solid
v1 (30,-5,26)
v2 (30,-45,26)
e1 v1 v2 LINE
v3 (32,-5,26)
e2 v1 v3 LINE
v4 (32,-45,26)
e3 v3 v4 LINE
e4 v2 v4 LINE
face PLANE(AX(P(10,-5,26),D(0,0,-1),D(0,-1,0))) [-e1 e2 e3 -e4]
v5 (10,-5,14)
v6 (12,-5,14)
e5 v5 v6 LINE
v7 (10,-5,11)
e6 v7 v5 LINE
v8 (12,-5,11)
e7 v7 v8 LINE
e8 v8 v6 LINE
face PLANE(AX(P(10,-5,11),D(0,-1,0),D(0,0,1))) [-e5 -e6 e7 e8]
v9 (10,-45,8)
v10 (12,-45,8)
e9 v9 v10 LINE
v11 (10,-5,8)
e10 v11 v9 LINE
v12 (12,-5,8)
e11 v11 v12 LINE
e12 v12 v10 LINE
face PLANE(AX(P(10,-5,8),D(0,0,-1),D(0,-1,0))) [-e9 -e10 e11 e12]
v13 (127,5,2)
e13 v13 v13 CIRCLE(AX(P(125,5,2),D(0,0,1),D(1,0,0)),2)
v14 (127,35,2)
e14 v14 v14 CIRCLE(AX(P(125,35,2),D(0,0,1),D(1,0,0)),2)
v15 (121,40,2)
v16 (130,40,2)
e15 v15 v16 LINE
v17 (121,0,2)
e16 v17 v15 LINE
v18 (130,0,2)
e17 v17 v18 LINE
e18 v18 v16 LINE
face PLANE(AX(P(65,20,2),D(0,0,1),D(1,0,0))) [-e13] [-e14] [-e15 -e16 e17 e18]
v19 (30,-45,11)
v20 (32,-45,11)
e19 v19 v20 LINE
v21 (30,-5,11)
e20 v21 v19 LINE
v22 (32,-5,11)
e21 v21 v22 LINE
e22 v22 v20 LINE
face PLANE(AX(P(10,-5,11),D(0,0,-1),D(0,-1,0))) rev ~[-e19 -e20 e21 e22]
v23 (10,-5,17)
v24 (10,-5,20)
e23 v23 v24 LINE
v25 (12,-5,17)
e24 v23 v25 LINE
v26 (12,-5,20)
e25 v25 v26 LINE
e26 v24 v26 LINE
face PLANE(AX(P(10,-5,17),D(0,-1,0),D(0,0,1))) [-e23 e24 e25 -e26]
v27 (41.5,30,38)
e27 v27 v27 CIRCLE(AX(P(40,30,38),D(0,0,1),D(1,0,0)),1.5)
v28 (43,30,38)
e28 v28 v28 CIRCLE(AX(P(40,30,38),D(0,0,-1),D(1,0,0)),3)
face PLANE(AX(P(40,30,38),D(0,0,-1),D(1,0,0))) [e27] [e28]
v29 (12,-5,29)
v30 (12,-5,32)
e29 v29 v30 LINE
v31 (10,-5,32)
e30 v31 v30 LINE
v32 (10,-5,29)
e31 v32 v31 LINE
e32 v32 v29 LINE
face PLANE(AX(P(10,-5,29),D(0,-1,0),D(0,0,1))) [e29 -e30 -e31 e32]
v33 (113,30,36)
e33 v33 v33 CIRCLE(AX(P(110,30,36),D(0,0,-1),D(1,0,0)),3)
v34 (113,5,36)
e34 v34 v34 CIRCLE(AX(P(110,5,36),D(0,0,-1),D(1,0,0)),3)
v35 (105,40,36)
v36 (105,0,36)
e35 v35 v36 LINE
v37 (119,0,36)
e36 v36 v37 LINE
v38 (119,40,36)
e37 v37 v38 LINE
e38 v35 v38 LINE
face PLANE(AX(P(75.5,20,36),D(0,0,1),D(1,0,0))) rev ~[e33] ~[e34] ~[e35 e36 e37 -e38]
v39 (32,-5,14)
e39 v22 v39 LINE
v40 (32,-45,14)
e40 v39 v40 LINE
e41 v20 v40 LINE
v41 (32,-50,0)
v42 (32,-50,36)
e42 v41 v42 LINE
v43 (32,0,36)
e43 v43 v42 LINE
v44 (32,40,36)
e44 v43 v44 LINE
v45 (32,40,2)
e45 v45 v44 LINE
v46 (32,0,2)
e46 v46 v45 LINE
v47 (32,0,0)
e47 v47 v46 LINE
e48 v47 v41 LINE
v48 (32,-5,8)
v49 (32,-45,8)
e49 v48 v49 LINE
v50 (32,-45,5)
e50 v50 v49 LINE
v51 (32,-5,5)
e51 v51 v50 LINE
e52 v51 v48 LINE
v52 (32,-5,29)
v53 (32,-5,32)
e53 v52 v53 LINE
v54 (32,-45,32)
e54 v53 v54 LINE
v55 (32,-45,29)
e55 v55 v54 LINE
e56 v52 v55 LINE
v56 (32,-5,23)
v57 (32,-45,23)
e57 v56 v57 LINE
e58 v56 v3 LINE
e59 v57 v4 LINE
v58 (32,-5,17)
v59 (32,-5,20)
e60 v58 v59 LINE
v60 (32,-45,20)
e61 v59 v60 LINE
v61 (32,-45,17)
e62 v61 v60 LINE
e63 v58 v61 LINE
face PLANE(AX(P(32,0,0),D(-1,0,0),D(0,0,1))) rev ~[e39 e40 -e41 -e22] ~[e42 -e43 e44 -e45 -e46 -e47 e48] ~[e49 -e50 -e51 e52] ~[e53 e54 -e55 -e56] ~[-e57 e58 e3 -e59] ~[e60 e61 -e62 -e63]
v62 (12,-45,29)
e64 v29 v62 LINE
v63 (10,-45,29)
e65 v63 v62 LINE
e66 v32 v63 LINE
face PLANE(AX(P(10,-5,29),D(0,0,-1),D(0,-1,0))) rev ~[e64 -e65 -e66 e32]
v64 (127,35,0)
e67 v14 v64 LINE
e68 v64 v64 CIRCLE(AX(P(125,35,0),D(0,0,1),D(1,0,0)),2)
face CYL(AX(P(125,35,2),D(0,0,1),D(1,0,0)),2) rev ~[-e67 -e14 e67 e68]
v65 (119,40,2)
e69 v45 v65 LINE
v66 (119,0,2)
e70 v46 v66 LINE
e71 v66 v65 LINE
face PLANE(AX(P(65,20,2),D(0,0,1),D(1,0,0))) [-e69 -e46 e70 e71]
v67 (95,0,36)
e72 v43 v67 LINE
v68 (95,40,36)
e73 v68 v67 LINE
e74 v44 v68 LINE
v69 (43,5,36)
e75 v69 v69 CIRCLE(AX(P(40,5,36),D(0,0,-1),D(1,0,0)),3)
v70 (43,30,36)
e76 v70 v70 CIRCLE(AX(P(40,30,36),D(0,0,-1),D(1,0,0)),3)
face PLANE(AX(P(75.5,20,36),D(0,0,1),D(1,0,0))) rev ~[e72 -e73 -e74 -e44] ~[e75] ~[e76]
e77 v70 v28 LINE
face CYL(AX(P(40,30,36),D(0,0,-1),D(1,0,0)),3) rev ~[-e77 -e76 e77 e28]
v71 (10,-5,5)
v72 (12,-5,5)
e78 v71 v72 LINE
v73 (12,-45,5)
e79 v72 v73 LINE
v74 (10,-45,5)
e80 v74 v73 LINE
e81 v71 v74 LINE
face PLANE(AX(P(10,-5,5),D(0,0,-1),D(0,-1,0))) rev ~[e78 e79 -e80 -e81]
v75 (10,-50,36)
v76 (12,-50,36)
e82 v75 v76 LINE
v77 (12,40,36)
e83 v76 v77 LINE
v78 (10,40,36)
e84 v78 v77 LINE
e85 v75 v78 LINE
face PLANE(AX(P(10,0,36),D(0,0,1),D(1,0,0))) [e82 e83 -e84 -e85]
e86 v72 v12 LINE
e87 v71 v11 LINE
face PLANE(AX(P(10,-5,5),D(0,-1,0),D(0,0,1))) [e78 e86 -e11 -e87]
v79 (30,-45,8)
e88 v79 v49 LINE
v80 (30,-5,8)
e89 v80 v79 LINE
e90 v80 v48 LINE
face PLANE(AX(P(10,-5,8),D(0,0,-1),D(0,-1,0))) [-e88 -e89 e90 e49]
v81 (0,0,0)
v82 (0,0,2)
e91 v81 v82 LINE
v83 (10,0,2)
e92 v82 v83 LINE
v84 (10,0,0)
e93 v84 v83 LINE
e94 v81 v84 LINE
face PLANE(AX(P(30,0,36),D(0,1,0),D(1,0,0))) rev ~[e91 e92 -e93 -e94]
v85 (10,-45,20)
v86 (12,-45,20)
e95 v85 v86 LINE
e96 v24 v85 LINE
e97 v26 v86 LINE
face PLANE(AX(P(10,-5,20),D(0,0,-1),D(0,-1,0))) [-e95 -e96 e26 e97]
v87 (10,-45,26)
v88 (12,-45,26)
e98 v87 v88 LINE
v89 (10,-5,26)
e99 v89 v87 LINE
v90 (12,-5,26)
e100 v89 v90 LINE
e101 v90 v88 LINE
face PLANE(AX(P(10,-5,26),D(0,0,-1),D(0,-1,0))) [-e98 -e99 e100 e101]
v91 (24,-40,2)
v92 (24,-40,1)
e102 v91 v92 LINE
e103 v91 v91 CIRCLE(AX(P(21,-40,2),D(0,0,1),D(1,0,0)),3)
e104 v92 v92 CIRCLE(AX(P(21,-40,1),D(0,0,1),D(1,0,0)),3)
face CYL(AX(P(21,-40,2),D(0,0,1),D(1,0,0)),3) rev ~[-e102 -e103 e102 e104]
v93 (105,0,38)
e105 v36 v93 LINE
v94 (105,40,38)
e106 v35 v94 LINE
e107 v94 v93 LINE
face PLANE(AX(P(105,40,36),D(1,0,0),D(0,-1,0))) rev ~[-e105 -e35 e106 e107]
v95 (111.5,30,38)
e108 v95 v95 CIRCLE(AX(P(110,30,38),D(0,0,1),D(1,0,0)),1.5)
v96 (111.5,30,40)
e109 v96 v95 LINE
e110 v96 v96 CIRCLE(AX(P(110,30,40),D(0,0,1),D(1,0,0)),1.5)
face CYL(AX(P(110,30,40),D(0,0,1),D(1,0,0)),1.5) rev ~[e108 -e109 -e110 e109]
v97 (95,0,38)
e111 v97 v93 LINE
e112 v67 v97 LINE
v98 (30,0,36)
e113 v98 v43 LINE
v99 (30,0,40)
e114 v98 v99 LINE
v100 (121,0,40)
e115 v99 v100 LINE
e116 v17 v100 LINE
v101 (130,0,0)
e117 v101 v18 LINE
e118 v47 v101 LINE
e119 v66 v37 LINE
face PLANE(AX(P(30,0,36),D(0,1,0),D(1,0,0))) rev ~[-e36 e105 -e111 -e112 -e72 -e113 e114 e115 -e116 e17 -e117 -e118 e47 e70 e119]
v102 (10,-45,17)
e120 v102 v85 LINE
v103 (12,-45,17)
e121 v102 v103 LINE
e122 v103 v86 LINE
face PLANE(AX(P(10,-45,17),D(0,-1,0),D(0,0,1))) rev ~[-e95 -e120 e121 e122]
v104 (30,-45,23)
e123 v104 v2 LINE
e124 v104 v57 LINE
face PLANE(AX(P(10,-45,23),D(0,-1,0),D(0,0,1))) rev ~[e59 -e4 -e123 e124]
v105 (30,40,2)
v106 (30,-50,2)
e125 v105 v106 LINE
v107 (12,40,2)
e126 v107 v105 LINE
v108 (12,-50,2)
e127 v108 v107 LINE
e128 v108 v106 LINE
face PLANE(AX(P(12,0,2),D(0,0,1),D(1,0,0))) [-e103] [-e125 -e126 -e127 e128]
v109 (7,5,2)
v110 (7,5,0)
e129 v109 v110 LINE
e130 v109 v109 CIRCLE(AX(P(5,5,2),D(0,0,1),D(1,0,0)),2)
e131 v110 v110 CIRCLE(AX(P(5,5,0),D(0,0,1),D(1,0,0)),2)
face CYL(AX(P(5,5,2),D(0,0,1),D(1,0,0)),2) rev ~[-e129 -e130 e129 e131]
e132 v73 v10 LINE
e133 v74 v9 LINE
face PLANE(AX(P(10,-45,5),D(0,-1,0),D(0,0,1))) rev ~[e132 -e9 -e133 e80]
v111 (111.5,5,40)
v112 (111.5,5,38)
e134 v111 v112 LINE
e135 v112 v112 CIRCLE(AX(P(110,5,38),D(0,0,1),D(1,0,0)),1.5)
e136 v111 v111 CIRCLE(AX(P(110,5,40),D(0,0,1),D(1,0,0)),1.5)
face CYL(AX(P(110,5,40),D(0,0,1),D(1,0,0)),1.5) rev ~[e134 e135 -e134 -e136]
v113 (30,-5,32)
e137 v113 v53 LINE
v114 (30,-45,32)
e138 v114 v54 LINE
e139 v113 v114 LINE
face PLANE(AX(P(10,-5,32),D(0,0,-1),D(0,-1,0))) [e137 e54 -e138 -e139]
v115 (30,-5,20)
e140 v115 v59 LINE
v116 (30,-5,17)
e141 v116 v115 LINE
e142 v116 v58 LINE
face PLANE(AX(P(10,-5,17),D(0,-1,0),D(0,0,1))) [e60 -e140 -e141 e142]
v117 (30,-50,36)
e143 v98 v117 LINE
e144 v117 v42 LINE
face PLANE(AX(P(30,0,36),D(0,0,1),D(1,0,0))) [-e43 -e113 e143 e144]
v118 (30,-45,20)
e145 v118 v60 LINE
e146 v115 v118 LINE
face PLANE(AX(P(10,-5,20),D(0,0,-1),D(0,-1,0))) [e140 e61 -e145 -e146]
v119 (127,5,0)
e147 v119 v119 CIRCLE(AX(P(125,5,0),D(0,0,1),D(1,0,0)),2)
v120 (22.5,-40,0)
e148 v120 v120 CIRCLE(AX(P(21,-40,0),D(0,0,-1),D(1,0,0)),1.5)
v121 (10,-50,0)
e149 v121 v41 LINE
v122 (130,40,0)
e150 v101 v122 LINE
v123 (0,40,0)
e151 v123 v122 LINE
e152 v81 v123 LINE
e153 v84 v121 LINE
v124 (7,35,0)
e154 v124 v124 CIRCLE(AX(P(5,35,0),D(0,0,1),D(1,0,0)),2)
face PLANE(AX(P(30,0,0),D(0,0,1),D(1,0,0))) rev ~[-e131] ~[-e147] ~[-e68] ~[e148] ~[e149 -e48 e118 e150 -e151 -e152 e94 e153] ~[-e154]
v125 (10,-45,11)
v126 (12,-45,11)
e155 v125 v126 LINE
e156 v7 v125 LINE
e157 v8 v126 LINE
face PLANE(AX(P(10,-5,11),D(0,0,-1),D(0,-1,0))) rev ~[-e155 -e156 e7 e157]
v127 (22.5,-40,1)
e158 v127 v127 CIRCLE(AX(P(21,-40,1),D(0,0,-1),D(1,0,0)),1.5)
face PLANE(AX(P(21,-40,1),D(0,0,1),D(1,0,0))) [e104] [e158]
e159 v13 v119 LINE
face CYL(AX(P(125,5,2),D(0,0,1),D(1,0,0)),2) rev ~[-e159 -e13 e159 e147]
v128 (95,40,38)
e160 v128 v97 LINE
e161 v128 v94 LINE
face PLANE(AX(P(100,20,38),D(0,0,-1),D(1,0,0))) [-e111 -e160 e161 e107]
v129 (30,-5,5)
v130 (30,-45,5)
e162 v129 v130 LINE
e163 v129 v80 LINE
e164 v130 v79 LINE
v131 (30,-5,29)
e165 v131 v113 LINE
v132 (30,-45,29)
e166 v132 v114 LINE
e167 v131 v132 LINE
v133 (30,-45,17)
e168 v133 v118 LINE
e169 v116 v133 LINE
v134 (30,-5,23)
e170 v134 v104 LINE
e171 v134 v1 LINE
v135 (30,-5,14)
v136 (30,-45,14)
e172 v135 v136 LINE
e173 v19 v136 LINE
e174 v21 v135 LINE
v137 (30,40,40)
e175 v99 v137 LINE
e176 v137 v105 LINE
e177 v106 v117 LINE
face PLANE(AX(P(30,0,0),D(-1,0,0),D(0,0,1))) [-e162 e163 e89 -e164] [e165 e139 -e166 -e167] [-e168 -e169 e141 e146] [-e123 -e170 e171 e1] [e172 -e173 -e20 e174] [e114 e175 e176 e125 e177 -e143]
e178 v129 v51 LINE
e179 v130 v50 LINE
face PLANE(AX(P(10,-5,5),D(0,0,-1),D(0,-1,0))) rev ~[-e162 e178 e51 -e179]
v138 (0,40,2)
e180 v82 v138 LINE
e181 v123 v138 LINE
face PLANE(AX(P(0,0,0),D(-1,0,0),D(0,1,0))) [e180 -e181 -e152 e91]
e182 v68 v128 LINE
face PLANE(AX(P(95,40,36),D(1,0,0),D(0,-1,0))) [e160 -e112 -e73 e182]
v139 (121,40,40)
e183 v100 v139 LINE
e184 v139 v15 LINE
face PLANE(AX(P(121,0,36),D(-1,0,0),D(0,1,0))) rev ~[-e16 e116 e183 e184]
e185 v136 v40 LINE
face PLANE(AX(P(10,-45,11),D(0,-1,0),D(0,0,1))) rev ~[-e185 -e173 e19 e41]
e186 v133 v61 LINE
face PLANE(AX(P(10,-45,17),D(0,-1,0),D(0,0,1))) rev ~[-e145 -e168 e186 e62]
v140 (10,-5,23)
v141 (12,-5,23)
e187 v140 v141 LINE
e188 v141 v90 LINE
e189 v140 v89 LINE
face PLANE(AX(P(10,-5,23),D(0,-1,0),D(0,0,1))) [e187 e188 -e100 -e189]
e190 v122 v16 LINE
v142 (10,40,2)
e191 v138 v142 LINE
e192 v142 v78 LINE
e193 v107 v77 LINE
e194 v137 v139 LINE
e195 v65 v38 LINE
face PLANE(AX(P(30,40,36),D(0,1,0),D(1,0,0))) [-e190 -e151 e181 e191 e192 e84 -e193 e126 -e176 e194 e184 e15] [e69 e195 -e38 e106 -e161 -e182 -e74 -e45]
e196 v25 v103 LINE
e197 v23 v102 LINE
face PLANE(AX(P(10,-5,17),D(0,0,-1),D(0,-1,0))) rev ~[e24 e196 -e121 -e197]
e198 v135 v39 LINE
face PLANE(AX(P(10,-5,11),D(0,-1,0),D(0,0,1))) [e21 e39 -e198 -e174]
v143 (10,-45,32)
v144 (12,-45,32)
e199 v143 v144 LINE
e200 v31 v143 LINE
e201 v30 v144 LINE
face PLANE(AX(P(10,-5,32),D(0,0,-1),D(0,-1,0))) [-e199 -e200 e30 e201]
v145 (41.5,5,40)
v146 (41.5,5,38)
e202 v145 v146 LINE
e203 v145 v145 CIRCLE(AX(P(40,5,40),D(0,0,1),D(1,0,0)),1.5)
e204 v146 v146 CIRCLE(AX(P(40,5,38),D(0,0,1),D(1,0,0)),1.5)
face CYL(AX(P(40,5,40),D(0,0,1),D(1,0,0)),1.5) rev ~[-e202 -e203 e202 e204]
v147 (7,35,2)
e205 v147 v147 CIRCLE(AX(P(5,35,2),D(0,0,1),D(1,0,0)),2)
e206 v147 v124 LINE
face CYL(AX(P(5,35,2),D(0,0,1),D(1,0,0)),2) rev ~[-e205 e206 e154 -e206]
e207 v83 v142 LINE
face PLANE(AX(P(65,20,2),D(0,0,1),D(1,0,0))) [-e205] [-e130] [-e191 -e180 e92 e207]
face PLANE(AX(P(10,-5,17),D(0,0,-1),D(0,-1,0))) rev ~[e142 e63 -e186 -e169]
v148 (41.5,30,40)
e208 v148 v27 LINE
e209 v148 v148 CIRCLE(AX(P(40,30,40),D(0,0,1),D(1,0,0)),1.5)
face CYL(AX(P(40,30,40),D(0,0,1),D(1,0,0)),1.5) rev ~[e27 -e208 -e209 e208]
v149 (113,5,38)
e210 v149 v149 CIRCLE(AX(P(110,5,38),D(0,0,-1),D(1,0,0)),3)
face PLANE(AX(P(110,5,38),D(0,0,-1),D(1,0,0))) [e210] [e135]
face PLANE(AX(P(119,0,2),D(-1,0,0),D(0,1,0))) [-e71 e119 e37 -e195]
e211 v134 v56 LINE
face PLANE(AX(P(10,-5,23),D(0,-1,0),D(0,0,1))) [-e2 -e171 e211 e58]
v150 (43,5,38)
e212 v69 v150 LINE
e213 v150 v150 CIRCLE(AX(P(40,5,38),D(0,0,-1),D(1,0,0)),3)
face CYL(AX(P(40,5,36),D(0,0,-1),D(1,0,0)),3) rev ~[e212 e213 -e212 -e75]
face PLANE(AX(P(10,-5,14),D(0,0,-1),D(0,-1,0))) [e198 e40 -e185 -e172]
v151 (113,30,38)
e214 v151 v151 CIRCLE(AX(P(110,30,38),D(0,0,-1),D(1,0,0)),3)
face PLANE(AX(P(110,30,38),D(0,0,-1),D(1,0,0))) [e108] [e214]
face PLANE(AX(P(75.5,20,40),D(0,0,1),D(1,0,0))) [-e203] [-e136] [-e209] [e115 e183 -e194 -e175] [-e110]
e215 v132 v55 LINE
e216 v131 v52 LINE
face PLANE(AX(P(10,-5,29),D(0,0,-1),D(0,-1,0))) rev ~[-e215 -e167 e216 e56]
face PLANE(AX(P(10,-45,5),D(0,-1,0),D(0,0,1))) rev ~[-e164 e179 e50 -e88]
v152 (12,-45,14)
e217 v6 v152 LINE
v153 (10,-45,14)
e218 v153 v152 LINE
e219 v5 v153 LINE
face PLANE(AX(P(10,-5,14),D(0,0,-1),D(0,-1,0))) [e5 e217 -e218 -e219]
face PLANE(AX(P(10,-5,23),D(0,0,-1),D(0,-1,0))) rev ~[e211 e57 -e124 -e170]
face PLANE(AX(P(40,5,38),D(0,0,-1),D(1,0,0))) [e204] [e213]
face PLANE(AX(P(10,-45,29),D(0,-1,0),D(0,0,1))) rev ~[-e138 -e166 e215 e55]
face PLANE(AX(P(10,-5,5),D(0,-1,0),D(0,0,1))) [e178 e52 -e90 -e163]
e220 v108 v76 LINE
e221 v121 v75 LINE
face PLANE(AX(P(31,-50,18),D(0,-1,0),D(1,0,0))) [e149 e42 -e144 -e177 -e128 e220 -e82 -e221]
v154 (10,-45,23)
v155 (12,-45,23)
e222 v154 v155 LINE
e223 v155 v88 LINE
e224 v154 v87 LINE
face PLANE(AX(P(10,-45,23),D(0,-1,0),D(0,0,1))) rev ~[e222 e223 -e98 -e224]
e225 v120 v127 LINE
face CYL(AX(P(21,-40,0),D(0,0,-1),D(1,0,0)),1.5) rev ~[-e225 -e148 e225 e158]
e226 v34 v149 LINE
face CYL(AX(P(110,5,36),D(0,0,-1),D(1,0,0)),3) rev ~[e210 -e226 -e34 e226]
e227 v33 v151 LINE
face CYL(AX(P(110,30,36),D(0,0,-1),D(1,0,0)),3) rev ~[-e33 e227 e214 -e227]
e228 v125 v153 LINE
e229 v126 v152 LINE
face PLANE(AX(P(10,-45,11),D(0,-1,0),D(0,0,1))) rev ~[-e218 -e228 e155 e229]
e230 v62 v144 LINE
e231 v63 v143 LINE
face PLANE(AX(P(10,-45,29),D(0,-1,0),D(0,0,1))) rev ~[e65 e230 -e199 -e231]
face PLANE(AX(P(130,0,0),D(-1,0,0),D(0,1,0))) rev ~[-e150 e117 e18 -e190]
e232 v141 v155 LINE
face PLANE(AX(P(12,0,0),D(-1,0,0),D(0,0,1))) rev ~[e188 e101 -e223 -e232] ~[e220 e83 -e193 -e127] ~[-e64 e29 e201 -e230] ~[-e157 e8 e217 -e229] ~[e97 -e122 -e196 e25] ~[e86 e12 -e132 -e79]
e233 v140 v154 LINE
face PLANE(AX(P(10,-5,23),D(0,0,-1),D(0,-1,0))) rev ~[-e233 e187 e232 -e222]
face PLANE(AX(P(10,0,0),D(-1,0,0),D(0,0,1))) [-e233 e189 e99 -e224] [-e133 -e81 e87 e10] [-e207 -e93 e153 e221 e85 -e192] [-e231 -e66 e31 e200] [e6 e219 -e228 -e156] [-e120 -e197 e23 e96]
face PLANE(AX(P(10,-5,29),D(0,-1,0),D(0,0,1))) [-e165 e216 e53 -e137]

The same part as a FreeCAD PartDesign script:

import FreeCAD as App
import Part
import Sketcher

doc = App.newDocument("Part")
body = doc.addObject("PartDesign::Body", "Body")

sketch1 = body.newObject("Sketcher::SketchObject", "Sketch")
sketch1.AttachmentSupport = (doc.getObject("XY_Plane"), [""])
sketch1.MapMode = "FlatFace"
sketch1.addGeometry(Part.LineSegment(App.Vector(0, 40, 0), App.Vector(0, 0, 0)), False)
sketch1.addGeometry(Part.LineSegment(App.Vector(0, 0, 0), App.Vector(130, 0, 0)), False)
sketch1.addGeometry(Part.LineSegment(App.Vector(130, 0, 0), App.Vector(130, 40, 0)), False)
sketch1.addGeometry(Part.LineSegment(App.Vector(130, 40, 0), App.Vector(0, 40, 0)), False)
sketch1.addConstraint(Sketcher.Constraint("Coincident", 0, 2, 1, 1))
sketch1.addConstraint(Sketcher.Constraint("Coincident", 1, 2, 2, 1))
sketch1.addConstraint(Sketcher.Constraint("Coincident", 2, 2, 3, 1))
sketch1.addConstraint(Sketcher.Constraint("Coincident", 3, 2, 0, 1))
sketch1.addConstraint(Sketcher.Constraint("Vertical", 0))
sketch1.addConstraint(Sketcher.Constraint("Horizontal", 1))
sketch1.addConstraint(Sketcher.Constraint("Vertical", 2))
sketch1.addConstraint(Sketcher.Constraint("Horizontal", 3))
sketch1.addConstraint(Sketcher.Constraint("Coincident", 0, 2, -1, 1))
sketch1.addConstraint(Sketcher.Constraint("DistanceX", 1, 1, 1, 2, 130.0))
sketch1.addConstraint(Sketcher.Constraint("DistanceY", 0, 2, 0, 1, 40.0))
pad1 = body.newObject("PartDesign::Pad", "Pad")
pad1.Profile = sketch1
pad1.Length = 2

sketch2 = body.newObject("Sketcher::SketchObject", "Sketch001")
sketch2.AttachmentSupport = (doc.getObject("XY_Plane"), [""])
sketch2.MapMode = "FlatFace"
sketch2.AttachmentOffset = App.Placement(App.Vector(0, 0, 2), App.Rotation())
sketch2.addGeometry(Part.LineSegment(App.Vector(10, 40, 0), App.Vector(10, 0, 0)), False)
sketch2.addGeometry(Part.LineSegment(App.Vector(10, 0, 0), App.Vector(12, 0, 0)), False)
sketch2.addGeometry(Part.LineSegment(App.Vector(12, 0, 0), App.Vector(12, 40, 0)), False)
sketch2.addGeometry(Part.LineSegment(App.Vector(12, 40, 0), App.Vector(10, 40, 0)), False)
sketch2.addGeometry(Part.LineSegment(App.Vector(30, 40, 0), App.Vector(30, 0, 0)), False)
sketch2.addGeometry(Part.LineSegment(App.Vector(30, 0, 0), App.Vector(32, 0, 0)), False)
sketch2.addGeometry(Part.LineSegment(App.Vector(32, 0, 0), App.Vector(32, 40, 0)), False)
sketch2.addGeometry(Part.LineSegment(App.Vector(32, 40, 0), App.Vector(30, 40, 0)), False)
sketch2.addGeometry(Part.LineSegment(App.Vector(119, 40, 0), App.Vector(119, 0, 0)), False)
sketch2.addGeometry(Part.LineSegment(App.Vector(119, 0, 0), App.Vector(121, 0, 0)), False)
sketch2.addGeometry(Part.LineSegment(App.Vector(121, 0, 0), App.Vector(121, 40, 0)), False)
sketch2.addGeometry(Part.LineSegment(App.Vector(121, 40, 0), App.Vector(119, 40, 0)), False)
sketch2.addConstraint(Sketcher.Constraint("Coincident", 0, 2, 1, 1))
sketch2.addConstraint(Sketcher.Constraint("Coincident", 1, 2, 2, 1))
sketch2.addConstraint(Sketcher.Constraint("Coincident", 2, 2, 3, 1))
sketch2.addConstraint(Sketcher.Constraint("Coincident", 3, 2, 0, 1))
sketch2.addConstraint(Sketcher.Constraint("Coincident", 4, 2, 5, 1))
sketch2.addConstraint(Sketcher.Constraint("Coincident", 5, 2, 6, 1))
sketch2.addConstraint(Sketcher.Constraint("Coincident", 6, 2, 7, 1))
sketch2.addConstraint(Sketcher.Constraint("Coincident", 7, 2, 4, 1))
sketch2.addConstraint(Sketcher.Constraint("Coincident", 8, 2, 9, 1))
sketch2.addConstraint(Sketcher.Constraint("Coincident", 9, 2, 10, 1))
sketch2.addConstraint(Sketcher.Constraint("Coincident", 10, 2, 11, 1))
sketch2.addConstraint(Sketcher.Constraint("Coincident", 11, 2, 8, 1))
sketch2.addConstraint(Sketcher.Constraint("Vertical", 0))
sketch2.addConstraint(Sketcher.Constraint("Horizontal", 1))
sketch2.addConstraint(Sketcher.Constraint("Vertical", 2))
sketch2.addConstraint(Sketcher.Constraint("Horizontal", 3))
sketch2.addConstraint(Sketcher.Constraint("Vertical", 4))
sketch2.addConstraint(Sketcher.Constraint("Horizontal", 5))
sketch2.addConstraint(Sketcher.Constraint("Vertical", 6))
sketch2.addConstraint(Sketcher.Constraint("Horizontal", 7))
sketch2.addConstraint(Sketcher.Constraint("Vertical", 8))
sketch2.addConstraint(Sketcher.Constraint("Horizontal", 9))
sketch2.addConstraint(Sketcher.Constraint("Vertical", 10))
sketch2.addConstraint(Sketcher.Constraint("Horizontal", 11))
sketch2.addConstraint(Sketcher.Constraint("PointOnObject", 0, 2, -1))
sketch2.addConstraint(Sketcher.Constraint("PointOnObject", 4, 2, -1))
sketch2.addConstraint(Sketcher.Constraint("PointOnObject", 8, 2, -1))
sketch2.addConstraint(Sketcher.Constraint("Horizontal", 3, 2, 6, 2))
sketch2.addConstraint(Sketcher.Constraint("Horizontal", 7, 2, 10, 2))
sketch2.addConstraint(Sketcher.Constraint("Equal", 3, 5))
sketch2.addConstraint(Sketcher.Constraint("Equal", 7, 9))
sketch2.addConstraint(Sketcher.Constraint("DistanceX", 1, 1, 1, 2, 2.0))
sketch2.addConstraint(Sketcher.Constraint("DistanceY", 0, 2, 0, 1, 40.0))
sketch2.addConstraint(Sketcher.Constraint("DistanceX", -1, 1, 0, 2, 10.0))
sketch2.addConstraint(Sketcher.Constraint("DistanceX", -1, 1, 4, 2, 30.0))
sketch2.addConstraint(Sketcher.Constraint("DistanceX", -1, 1, 8, 2, 119.0))
pad2 = body.newObject("PartDesign::Pad", "Pad001")
pad2.Profile = sketch2
pad2.Length = 34

sketch3 = body.newObject("Sketcher::SketchObject", "Sketch002")
sketch3.AttachmentSupport = (doc.getObject("XY_Plane"), [""])
sketch3.MapMode = "FlatFace"
sketch3.AttachmentOffset = App.Placement(App.Vector(0, 0, 2), App.Rotation())
sketch3.addGeometry(Part.Circle(App.Vector(5, 5, 0), App.Vector(0, 0, 1), 2), False)
sketch3.addGeometry(Part.Circle(App.Vector(5, 35, 0), App.Vector(0, 0, 1), 2), False)
sketch3.addConstraint(Sketcher.Constraint("Equal", 0, 1))
sketch3.addConstraint(Sketcher.Constraint("Vertical", 0, 3, 1, 3))
sketch3.addConstraint(Sketcher.Constraint("Diameter", 0, 4.0))
sketch3.addConstraint(Sketcher.Constraint("DistanceX", -1, 1, 0, 3, 5.0))
sketch3.addConstraint(Sketcher.Constraint("DistanceY", -1, 1, 0, 3, 5.0))
sketch3.addConstraint(Sketcher.Constraint("DistanceY", -1, 1, 1, 3, 35.0))
pocket1 = body.newObject("PartDesign::Pocket", "Pocket")
pocket1.Profile = sketch3
pocket1.Length = 2

sketch4 = body.newObject("Sketcher::SketchObject", "Sketch003")
sketch4.AttachmentSupport = (doc.getObject("XY_Plane"), [""])
sketch4.MapMode = "FlatFace"
sketch4.AttachmentOffset = App.Placement(App.Vector(0, 0, 2), App.Rotation())
sketch4.addGeometry(Part.Circle(App.Vector(125, 5, 0), App.Vector(0, 0, 1), 2), False)
sketch4.addGeometry(Part.Circle(App.Vector(125, 35, 0), App.Vector(0, 0, 1), 2), False)
sketch4.addConstraint(Sketcher.Constraint("Equal", 0, 1))
sketch4.addConstraint(Sketcher.Constraint("Vertical", 0, 3, 1, 3))
sketch4.addConstraint(Sketcher.Constraint("Diameter", 0, 4.0))
sketch4.addConstraint(Sketcher.Constraint("DistanceX", -1, 1, 0, 3, 125.0))
sketch4.addConstraint(Sketcher.Constraint("DistanceY", -1, 1, 0, 3, 5.0))
sketch4.addConstraint(Sketcher.Constraint("DistanceY", -1, 1, 1, 3, 35.0))
pocket2 = body.newObject("PartDesign::Pocket", "Pocket001")
pocket2.Profile = sketch4
pocket2.Length = 2

sketch5 = body.newObject("Sketcher::SketchObject", "Sketch004")
sketch5.AttachmentSupport = (doc.getObject("XY_Plane"), [""])
sketch5.MapMode = "FlatFace"
sketch5.AttachmentOffset = App.Placement(App.Vector(0, 0, 36), App.Rotation())
sketch5.addGeometry(Part.LineSegment(App.Vector(30, 40, 0), App.Vector(30, 0, 0)), False)
sketch5.addGeometry(Part.LineSegment(App.Vector(30, 0, 0), App.Vector(121, 0, 0)), False)
sketch5.addGeometry(Part.LineSegment(App.Vector(121, 0, 0), App.Vector(121, 40, 0)), False)
sketch5.addGeometry(Part.LineSegment(App.Vector(121, 40, 0), App.Vector(30, 40, 0)), False)
sketch5.addConstraint(Sketcher.Constraint("Coincident", 0, 2, 1, 1))
sketch5.addConstraint(Sketcher.Constraint("Coincident", 1, 2, 2, 1))
sketch5.addConstraint(Sketcher.Constraint("Coincident", 2, 2, 3, 1))
sketch5.addConstraint(Sketcher.Constraint("Coincident", 3, 2, 0, 1))
sketch5.addConstraint(Sketcher.Constraint("Vertical", 0))
sketch5.addConstraint(Sketcher.Constraint("Horizontal", 1))
sketch5.addConstraint(Sketcher.Constraint("Vertical", 2))
sketch5.addConstraint(Sketcher.Constraint("Horizontal", 3))
sketch5.addConstraint(Sketcher.Constraint("PointOnObject", 0, 2, -1))
sketch5.addConstraint(Sketcher.Constraint("DistanceX", 1, 1, 1, 2, 91.0))
sketch5.addConstraint(Sketcher.Constraint("DistanceY", 0, 2, 0, 1, 40.0))
sketch5.addConstraint(Sketcher.Constraint("DistanceX", -1, 1, 0, 2, 30.0))
pad3 = body.newObject("PartDesign::Pad", "Pad002")
pad3.Profile = sketch5
pad3.Length = 4

sketch6 = body.newObject("Sketcher::SketchObject", "Sketch005")
sketch6.AttachmentSupport = (doc.getObject("XZ_Plane"), [""])
sketch6.MapMode = "FlatFace"
sketch6.addGeometry(Part.LineSegment(App.Vector(12, 2, 0), App.Vector(12, 0, 0)), False)
sketch6.addGeometry(Part.LineSegment(App.Vector(12, 0, 0), App.Vector(30, 0, 0)), False)
sketch6.addGeometry(Part.LineSegment(App.Vector(30, 0, 0), App.Vector(30, 2, 0)), False)
sketch6.addGeometry(Part.LineSegment(App.Vector(30, 2, 0), App.Vector(12, 2, 0)), False)
sketch6.addConstraint(Sketcher.Constraint("Coincident", 0, 2, 1, 1))
sketch6.addConstraint(Sketcher.Constraint("Coincident", 1, 2, 2, 1))
sketch6.addConstraint(Sketcher.Constraint("Coincident", 2, 2, 3, 1))
sketch6.addConstraint(Sketcher.Constraint("Coincident", 3, 2, 0, 1))
sketch6.addConstraint(Sketcher.Constraint("Vertical", 0))
sketch6.addConstraint(Sketcher.Constraint("Horizontal", 1))
sketch6.addConstraint(Sketcher.Constraint("Vertical", 2))
sketch6.addConstraint(Sketcher.Constraint("Horizontal", 3))
sketch6.addConstraint(Sketcher.Constraint("PointOnObject", 0, 2, -1))
sketch6.addConstraint(Sketcher.Constraint("DistanceX", 1, 1, 1, 2, 18.0))
sketch6.addConstraint(Sketcher.Constraint("DistanceY", 0, 2, 0, 1, 2.0))
sketch6.addConstraint(Sketcher.Constraint("DistanceX", -1, 1, 0, 2, 12.0))
pad4 = body.newObject("PartDesign::Pad", "Pad003")
pad4.Profile = sketch6
pad4.Length = 50

sketch7 = body.newObject("Sketcher::SketchObject", "Sketch006")
sketch7.AttachmentSupport = (doc.getObject("XZ_Plane"), [""])
sketch7.MapMode = "FlatFace"
sketch7.addGeometry(Part.LineSegment(App.Vector(10, 36, 0), App.Vector(10, 0, 0)), False)
sketch7.addGeometry(Part.LineSegment(App.Vector(10, 0, 0), App.Vector(12, 0, 0)), False)
sketch7.addGeometry(Part.LineSegment(App.Vector(12, 0, 0), App.Vector(12, 36, 0)), False)
sketch7.addGeometry(Part.LineSegment(App.Vector(12, 36, 0), App.Vector(10, 36, 0)), False)
sketch7.addConstraint(Sketcher.Constraint("Coincident", 0, 2, 1, 1))
sketch7.addConstraint(Sketcher.Constraint("Coincident", 1, 2, 2, 1))
sketch7.addConstraint(Sketcher.Constraint("Coincident", 2, 2, 3, 1))
sketch7.addConstraint(Sketcher.Constraint("Coincident", 3, 2, 0, 1))
sketch7.addConstraint(Sketcher.Constraint("Vertical", 0))
sketch7.addConstraint(Sketcher.Constraint("Horizontal", 1))
sketch7.addConstraint(Sketcher.Constraint("Vertical", 2))
sketch7.addConstraint(Sketcher.Constraint("Horizontal", 3))
sketch7.addConstraint(Sketcher.Constraint("PointOnObject", 0, 2, -1))
sketch7.addConstraint(Sketcher.Constraint("DistanceX", 1, 1, 1, 2, 2.0))
sketch7.addConstraint(Sketcher.Constraint("DistanceY", 0, 2, 0, 1, 36.0))
sketch7.addConstraint(Sketcher.Constraint("DistanceX", -1, 1, 0, 2, 10.0))
pad5 = body.newObject("PartDesign::Pad", "Pad004")
pad5.Profile = sketch7
pad5.Length = 50

sketch8 = body.newObject("Sketcher::SketchObject", "Sketch007")
sketch8.AttachmentSupport = (doc.getObject("XZ_Plane"), [""])
sketch8.MapMode = "FlatFace"
sketch8.addGeometry(Part.LineSegment(App.Vector(30, 36, 0), App.Vector(30, 0, 0)), False)
sketch8.addGeometry(Part.LineSegment(App.Vector(30, 0, 0), App.Vector(32, 0, 0)), False)
sketch8.addGeometry(Part.LineSegment(App.Vector(32, 0, 0), App.Vector(32, 36, 0)), False)
sketch8.addGeometry(Part.LineSegment(App.Vector(32, 36, 0), App.Vector(30, 36, 0)), False)
sketch8.addConstraint(Sketcher.Constraint("Coincident", 0, 2, 1, 1))
sketch8.addConstraint(Sketcher.Constraint("Coincident", 1, 2, 2, 1))
sketch8.addConstraint(Sketcher.Constraint("Coincident", 2, 2, 3, 1))
sketch8.addConstraint(Sketcher.Constraint("Coincident", 3, 2, 0, 1))
sketch8.addConstraint(Sketcher.Constraint("Vertical", 0))
sketch8.addConstraint(Sketcher.Constraint("Horizontal", 1))
sketch8.addConstraint(Sketcher.Constraint("Vertical", 2))
sketch8.addConstraint(Sketcher.Constraint("Horizontal", 3))
sketch8.addConstraint(Sketcher.Constraint("PointOnObject", 0, 2, -1))
sketch8.addConstraint(Sketcher.Constraint("DistanceX", 1, 1, 1, 2, 2.0))
sketch8.addConstraint(Sketcher.Constraint("DistanceY", 0, 2, 0, 1, 36.0))
sketch8.addConstraint(Sketcher.Constraint("DistanceX", -1, 1, 0, 2, 30.0))
pad6 = body.newObject("PartDesign::Pad", "Pad005")
pad6.Profile = sketch8
pad6.Length = 50

sketch9 = body.newObject("Sketcher::SketchObject", "Sketch008")
sketch9.AttachmentSupport = (doc.getObject("XY_Plane"), [""])
sketch9.MapMode = "FlatFace"
sketch9.AttachmentOffset = App.Placement(App.Vector(0, 0, 2), App.Rotation())
sketch9.addGeometry(Part.Circle(App.Vector(21, -40, 0), App.Vector(0, 0, 1), 3), False)
sketch9.addConstraint(Sketcher.Constraint("Diameter", 0, 6.0))
sketch9.addConstraint(Sketcher.Constraint("DistanceX", -1, 1, 0, 3, 21.0))
sketch9.addConstraint(Sketcher.Constraint("DistanceY", 0, 3, -1, 1, 40.0))
pocket3 = body.newObject("PartDesign::Pocket", "Pocket002")
pocket3.Profile = sketch9
pocket3.Length = 1

sketch10 = body.newObject("Sketcher::SketchObject", "Sketch009")
sketch10.AttachmentSupport = (doc.getObject("XY_Plane"), [""])
sketch10.MapMode = "FlatFace"
sketch10.AttachmentOffset = App.Placement(App.Vector(0, 0, 36), App.Rotation())
sketch10.addGeometry(Part.Circle(App.Vector(40, 5, 0), App.Vector(0, 0, 1), 3), False)
sketch10.addGeometry(Part.Circle(App.Vector(40, 30, 0), App.Vector(0, 0, 1), 3), False)
sketch10.addGeometry(Part.Circle(App.Vector(110, 30, 0), App.Vector(0, 0, 1), 3), False)
sketch10.addGeometry(Part.Circle(App.Vector(110, 5, 0), App.Vector(0, 0, 1), 3), False)
sketch10.addGeometry(Part.LineSegment(App.Vector(95, 0, 0), App.Vector(95, 40, 0)), False)
sketch10.addGeometry(Part.LineSegment(App.Vector(95, 40, 0), App.Vector(105, 40, 0)), False)
sketch10.addGeometry(Part.LineSegment(App.Vector(105, 40, 0), App.Vector(105, 0, 0)), False)
sketch10.addGeometry(Part.LineSegment(App.Vector(105, 0, 0), App.Vector(95, 0, 0)), False)
sketch10.addConstraint(Sketcher.Constraint("Coincident", 4, 2, 5, 1))
sketch10.addConstraint(Sketcher.Constraint("Coincident", 5, 2, 6, 1))
sketch10.addConstraint(Sketcher.Constraint("Coincident", 6, 2, 7, 1))
sketch10.addConstraint(Sketcher.Constraint("Coincident", 7, 2, 4, 1))
sketch10.addConstraint(Sketcher.Constraint("Vertical", 4))
sketch10.addConstraint(Sketcher.Constraint("Horizontal", 5))
sketch10.addConstraint(Sketcher.Constraint("Vertical", 6))
sketch10.addConstraint(Sketcher.Constraint("Horizontal", 7))
sketch10.addConstraint(Sketcher.Constraint("Equal", 0, 1))
sketch10.addConstraint(Sketcher.Constraint("Equal", 1, 2))
sketch10.addConstraint(Sketcher.Constraint("Equal", 2, 3))
sketch10.addConstraint(Sketcher.Constraint("PointOnObject", 6, 2, -1))
sketch10.addConstraint(Sketcher.Constraint("Horizontal", 1, 3, 2, 3))
sketch10.addConstraint(Sketcher.Constraint("Horizontal", 0, 3, 3, 3))
sketch10.addConstraint(Sketcher.Constraint("Vertical", 0, 3, 1, 3))
sketch10.addConstraint(Sketcher.Constraint("Vertical", 2, 3, 3, 3))
sketch10.addConstraint(Sketcher.Constraint("Diameter", 0, 6.0))
sketch10.addConstraint(Sketcher.Constraint("DistanceX", 5, 1, 5, 2, 10.0))
sketch10.addConstraint(Sketcher.Constraint("DistanceY", 4, 1, 4, 2, 40.0))
sketch10.addConstraint(Sketcher.Constraint("DistanceX", -1, 1, 0, 3, 40.0))
sketch10.addConstraint(Sketcher.Constraint("DistanceY", -1, 1, 0, 3, 5.0))
sketch10.addConstraint(Sketcher.Constraint("DistanceY", -1, 1, 1, 3, 30.0))
sketch10.addConstraint(Sketcher.Constraint("DistanceX", -1, 1, 2, 3, 110.0))
sketch10.addConstraint(Sketcher.Constraint("DistanceX", -1, 1, 4, 2, 95.0))
pocket4 = body.newObject("PartDesign::Pocket", "Pocket003")
pocket4.Profile = sketch10
pocket4.Length = 2
pocket4.Reversed = True

sketch11 = body.newObject("Sketcher::SketchObject", "Sketch010")
sketch11.AttachmentSupport = (doc.getObject("XY_Plane"), [""])
sketch11.MapMode = "FlatFace"
sketch11.AttachmentOffset = App.Placement(App.Vector(0, 0, 40), App.Rotation())
sketch11.addGeometry(Part.Circle(App.Vector(40, 5, 0), App.Vector(0, 0, 1), 1.5), False)
sketch11.addGeometry(Part.Circle(App.Vector(40, 30, 0), App.Vector(0, 0, 1), 1.5), False)
sketch11.addGeometry(Part.Circle(App.Vector(110, 30, 0), App.Vector(0, 0, 1), 1.5), False)
sketch11.addGeometry(Part.Circle(App.Vector(110, 5, 0), App.Vector(0, 0, 1), 1.5), False)
sketch11.addConstraint(Sketcher.Constraint("Equal", 0, 1))
sketch11.addConstraint(Sketcher.Constraint("Equal", 1, 2))
sketch11.addConstraint(Sketcher.Constraint("Equal", 2, 3))
sketch11.addConstraint(Sketcher.Constraint("Horizontal", 1, 3, 2, 3))
sketch11.addConstraint(Sketcher.Constraint("Horizontal", 0, 3, 3, 3))
sketch11.addConstraint(Sketcher.Constraint("Vertical", 0, 3, 1, 3))
sketch11.addConstraint(Sketcher.Constraint("Vertical", 2, 3, 3, 3))
sketch11.addConstraint(Sketcher.Constraint("Diameter", 0, 3.0))
sketch11.addConstraint(Sketcher.Constraint("DistanceX", -1, 1, 0, 3, 40.0))
sketch11.addConstraint(Sketcher.Constraint("DistanceY", -1, 1, 0, 3, 5.0))
sketch11.addConstraint(Sketcher.Constraint("DistanceY", -1, 1, 1, 3, 30.0))
sketch11.addConstraint(Sketcher.Constraint("DistanceX", -1, 1, 2, 3, 110.0))
pocket5 = body.newObject("PartDesign::Pocket", "Pocket004")
pocket5.Profile = sketch11
pocket5.Length = 5

sketch12 = body.newObject("Sketcher::SketchObject", "Sketch011")
sketch12.AttachmentSupport = (doc.getObject("YZ_Plane"), [""])
sketch12.MapMode = "FlatFace"
sketch12.AttachmentOffset = App.Placement(App.Vector(0, 0, 10), App.Rotation())
sketch12.addGeometry(Part.LineSegment(App.Vector(-5, 8, 0), App.Vector(-5, 5, 0)), False)
sketch12.addGeometry(Part.LineSegment(App.Vector(-5, 5, 0), App.Vector(-45, 5, 0)), False)
sketch12.addGeometry(Part.LineSegment(App.Vector(-45, 5, 0), App.Vector(-45, 8, 0)), False)
sketch12.addGeometry(Part.LineSegment(App.Vector(-45, 8, 0), App.Vector(-5, 8, 0)), False)
sketch12.addGeometry(Part.LineSegment(App.Vector(-5, 14, 0), App.Vector(-5, 11, 0)), False)
sketch12.addGeometry(Part.LineSegment(App.Vector(-5, 11, 0), App.Vector(-45, 11, 0)), False)
sketch12.addGeometry(Part.LineSegment(App.Vector(-45, 11, 0), App.Vector(-45, 14, 0)), False)
sketch12.addGeometry(Part.LineSegment(App.Vector(-45, 14, 0), App.Vector(-5, 14, 0)), False)
sketch12.addGeometry(Part.LineSegment(App.Vector(-5, 20, 0), App.Vector(-5, 17, 0)), False)
sketch12.addGeometry(Part.LineSegment(App.Vector(-5, 17, 0), App.Vector(-45, 17, 0)), False)
sketch12.addGeometry(Part.LineSegment(App.Vector(-45, 17, 0), App.Vector(-45, 20, 0)), False)
sketch12.addGeometry(Part.LineSegment(App.Vector(-45, 20, 0), App.Vector(-5, 20, 0)), False)
sketch12.addGeometry(Part.LineSegment(App.Vector(-5, 26, 0), App.Vector(-5, 23, 0)), False)
sketch12.addGeometry(Part.LineSegment(App.Vector(-5, 23, 0), App.Vector(-45, 23, 0)), False)
sketch12.addGeometry(Part.LineSegment(App.Vector(-45, 23, 0), App.Vector(-45, 26, 0)), False)
sketch12.addGeometry(Part.LineSegment(App.Vector(-45, 26, 0), App.Vector(-5, 26, 0)), False)
sketch12.addGeometry(Part.LineSegment(App.Vector(-5, 32, 0), App.Vector(-5, 29, 0)), False)
sketch12.addGeometry(Part.LineSegment(App.Vector(-5, 29, 0), App.Vector(-45, 29, 0)), False)
sketch12.addGeometry(Part.LineSegment(App.Vector(-45, 29, 0), App.Vector(-45, 32, 0)), False)
sketch12.addGeometry(Part.LineSegment(App.Vector(-45, 32, 0), App.Vector(-5, 32, 0)), False)
sketch12.addConstraint(Sketcher.Constraint("Coincident", 0, 2, 1, 1))
sketch12.addConstraint(Sketcher.Constraint("Coincident", 1, 2, 2, 1))
sketch12.addConstraint(Sketcher.Constraint("Coincident", 2, 2, 3, 1))
sketch12.addConstraint(Sketcher.Constraint("Coincident", 3, 2, 0, 1))
sketch12.addConstraint(Sketcher.Constraint("Coincident", 4, 2, 5, 1))
sketch12.addConstraint(Sketcher.Constraint("Coincident", 5, 2, 6, 1))
sketch12.addConstraint(Sketcher.Constraint("Coincident", 6, 2, 7, 1))
sketch12.addConstraint(Sketcher.Constraint("Coincident", 7, 2, 4, 1))
sketch12.addConstraint(Sketcher.Constraint("Coincident", 8, 2, 9, 1))
sketch12.addConstraint(Sketcher.Constraint("Coincident", 9, 2, 10, 1))
sketch12.addConstraint(Sketcher.Constraint("Coincident", 10, 2, 11, 1))
sketch12.addConstraint(Sketcher.Constraint("Coincident", 11, 2, 8, 1))
sketch12.addConstraint(Sketcher.Constraint("Coincident", 12, 2, 13, 1))
sketch12.addConstraint(Sketcher.Constraint("Coincident", 13, 2, 14, 1))
sketch12.addConstraint(Sketcher.Constraint("Coincident", 14, 2, 15, 1))
sketch12.addConstraint(Sketcher.Constraint("Coincident", 15, 2, 12, 1))
sketch12.addConstraint(Sketcher.Constraint("Coincident", 16, 2, 17, 1))
sketch12.addConstraint(Sketcher.Constraint("Coincident", 17, 2, 18, 1))
sketch12.addConstraint(Sketcher.Constraint("Coincident", 18, 2, 19, 1))
sketch12.addConstraint(Sketcher.Constraint("Coincident", 19, 2, 16, 1))
sketch12.addConstraint(Sketcher.Constraint("Vertical", 0))
sketch12.addConstraint(Sketcher.Constraint("Horizontal", 1))
sketch12.addConstraint(Sketcher.Constraint("Vertical", 2))
sketch12.addConstraint(Sketcher.Constraint("Horizontal", 3))
sketch12.addConstraint(Sketcher.Constraint("Vertical", 4))
sketch12.addConstraint(Sketcher.Constraint("Horizontal", 5))
sketch12.addConstraint(Sketcher.Constraint("Vertical", 6))
sketch12.addConstraint(Sketcher.Constraint("Horizontal", 7))
sketch12.addConstraint(Sketcher.Constraint("Vertical", 8))
sketch12.addConstraint(Sketcher.Constraint("Horizontal", 9))
sketch12.addConstraint(Sketcher.Constraint("Vertical", 10))
sketch12.addConstraint(Sketcher.Constraint("Horizontal", 11))
sketch12.addConstraint(Sketcher.Constraint("Vertical", 12))
sketch12.addConstraint(Sketcher.Constraint("Horizontal", 13))
sketch12.addConstraint(Sketcher.Constraint("Vertical", 14))
sketch12.addConstraint(Sketcher.Constraint("Horizontal", 15))
sketch12.addConstraint(Sketcher.Constraint("Vertical", 16))
sketch12.addConstraint(Sketcher.Constraint("Horizontal", 17))
sketch12.addConstraint(Sketcher.Constraint("Vertical", 18))
sketch12.addConstraint(Sketcher.Constraint("Horizontal", 19))
sketch12.addConstraint(Sketcher.Constraint("Vertical", 3, 2, 4, 2))
sketch12.addConstraint(Sketcher.Constraint("Vertical", 2, 2, 5, 2))
sketch12.addConstraint(Sketcher.Constraint("Vertical", 7, 2, 8, 2))
sketch12.addConstraint(Sketcher.Constraint("Vertical", 6, 2, 9, 2))
sketch12.addConstraint(Sketcher.Constraint("Vertical", 11, 2, 12, 2))
sketch12.addConstraint(Sketcher.Constraint("Vertical", 10, 2, 13, 2))
sketch12.addConstraint(Sketcher.Constraint("Vertical", 15, 2, 16, 2))
sketch12.addConstraint(Sketcher.Constraint("Vertical", 14, 2, 17, 2))
sketch12.addConstraint(Sketcher.Constraint("Equal", 2, 4))
sketch12.addConstraint(Sketcher.Constraint("Equal", 6, 8))
sketch12.addConstraint(Sketcher.Constraint("Equal", 10, 12))
sketch12.addConstraint(Sketcher.Constraint("Equal", 14, 16))
sketch12.addConstraint(Sketcher.Constraint("DistanceX", 1, 2, 1, 1, 40.0))
sketch12.addConstraint(Sketcher.Constraint("DistanceY", 0, 2, 0, 1, 3.0))
sketch12.addConstraint(Sketcher.Constraint("DistanceX", 0, 2, -1, 1, 5.0))
sketch12.addConstraint(Sketcher.Constraint("DistanceY", -1, 1, 0, 2, 5.0))
sketch12.addConstraint(Sketcher.Constraint("DistanceY", -1, 1, 4, 2, 11.0))
sketch12.addConstraint(Sketcher.Constraint("DistanceY", -1, 1, 8, 2, 17.0))
sketch12.addConstraint(Sketcher.Constraint("DistanceY", -1, 1, 12, 2, 23.0))
sketch12.addConstraint(Sketcher.Constraint("DistanceY", -1, 1, 16, 2, 29.0))
pocket6 = body.newObject("PartDesign::Pocket", "Pocket005")
pocket6.Profile = sketch12
pocket6.Length = 40
pocket6.Reversed = True

sketch13 = body.newObject("Sketcher::SketchObject", "Sketch012")
sketch13.AttachmentSupport = (doc.getObject("XY_Plane"), [""])
sketch13.MapMode = "FlatFace"
sketch13.addGeometry(Part.Circle(App.Vector(21, -40, 0), App.Vector(0, 0, 1), 1.5), False)
sketch13.addConstraint(Sketcher.Constraint("Diameter", 0, 3.0))
sketch13.addConstraint(Sketcher.Constraint("DistanceX", -1, 1, 0, 3, 21.0))
sketch13.addConstraint(Sketcher.Constraint("DistanceY", 0, 3, -1, 1, 40.0))
pocket7 = body.newObject("PartDesign::Pocket", "Pocket006")
pocket7.Profile = sketch13
pocket7.Length = 1
pocket7.Reversed = True

doc.recompute()
